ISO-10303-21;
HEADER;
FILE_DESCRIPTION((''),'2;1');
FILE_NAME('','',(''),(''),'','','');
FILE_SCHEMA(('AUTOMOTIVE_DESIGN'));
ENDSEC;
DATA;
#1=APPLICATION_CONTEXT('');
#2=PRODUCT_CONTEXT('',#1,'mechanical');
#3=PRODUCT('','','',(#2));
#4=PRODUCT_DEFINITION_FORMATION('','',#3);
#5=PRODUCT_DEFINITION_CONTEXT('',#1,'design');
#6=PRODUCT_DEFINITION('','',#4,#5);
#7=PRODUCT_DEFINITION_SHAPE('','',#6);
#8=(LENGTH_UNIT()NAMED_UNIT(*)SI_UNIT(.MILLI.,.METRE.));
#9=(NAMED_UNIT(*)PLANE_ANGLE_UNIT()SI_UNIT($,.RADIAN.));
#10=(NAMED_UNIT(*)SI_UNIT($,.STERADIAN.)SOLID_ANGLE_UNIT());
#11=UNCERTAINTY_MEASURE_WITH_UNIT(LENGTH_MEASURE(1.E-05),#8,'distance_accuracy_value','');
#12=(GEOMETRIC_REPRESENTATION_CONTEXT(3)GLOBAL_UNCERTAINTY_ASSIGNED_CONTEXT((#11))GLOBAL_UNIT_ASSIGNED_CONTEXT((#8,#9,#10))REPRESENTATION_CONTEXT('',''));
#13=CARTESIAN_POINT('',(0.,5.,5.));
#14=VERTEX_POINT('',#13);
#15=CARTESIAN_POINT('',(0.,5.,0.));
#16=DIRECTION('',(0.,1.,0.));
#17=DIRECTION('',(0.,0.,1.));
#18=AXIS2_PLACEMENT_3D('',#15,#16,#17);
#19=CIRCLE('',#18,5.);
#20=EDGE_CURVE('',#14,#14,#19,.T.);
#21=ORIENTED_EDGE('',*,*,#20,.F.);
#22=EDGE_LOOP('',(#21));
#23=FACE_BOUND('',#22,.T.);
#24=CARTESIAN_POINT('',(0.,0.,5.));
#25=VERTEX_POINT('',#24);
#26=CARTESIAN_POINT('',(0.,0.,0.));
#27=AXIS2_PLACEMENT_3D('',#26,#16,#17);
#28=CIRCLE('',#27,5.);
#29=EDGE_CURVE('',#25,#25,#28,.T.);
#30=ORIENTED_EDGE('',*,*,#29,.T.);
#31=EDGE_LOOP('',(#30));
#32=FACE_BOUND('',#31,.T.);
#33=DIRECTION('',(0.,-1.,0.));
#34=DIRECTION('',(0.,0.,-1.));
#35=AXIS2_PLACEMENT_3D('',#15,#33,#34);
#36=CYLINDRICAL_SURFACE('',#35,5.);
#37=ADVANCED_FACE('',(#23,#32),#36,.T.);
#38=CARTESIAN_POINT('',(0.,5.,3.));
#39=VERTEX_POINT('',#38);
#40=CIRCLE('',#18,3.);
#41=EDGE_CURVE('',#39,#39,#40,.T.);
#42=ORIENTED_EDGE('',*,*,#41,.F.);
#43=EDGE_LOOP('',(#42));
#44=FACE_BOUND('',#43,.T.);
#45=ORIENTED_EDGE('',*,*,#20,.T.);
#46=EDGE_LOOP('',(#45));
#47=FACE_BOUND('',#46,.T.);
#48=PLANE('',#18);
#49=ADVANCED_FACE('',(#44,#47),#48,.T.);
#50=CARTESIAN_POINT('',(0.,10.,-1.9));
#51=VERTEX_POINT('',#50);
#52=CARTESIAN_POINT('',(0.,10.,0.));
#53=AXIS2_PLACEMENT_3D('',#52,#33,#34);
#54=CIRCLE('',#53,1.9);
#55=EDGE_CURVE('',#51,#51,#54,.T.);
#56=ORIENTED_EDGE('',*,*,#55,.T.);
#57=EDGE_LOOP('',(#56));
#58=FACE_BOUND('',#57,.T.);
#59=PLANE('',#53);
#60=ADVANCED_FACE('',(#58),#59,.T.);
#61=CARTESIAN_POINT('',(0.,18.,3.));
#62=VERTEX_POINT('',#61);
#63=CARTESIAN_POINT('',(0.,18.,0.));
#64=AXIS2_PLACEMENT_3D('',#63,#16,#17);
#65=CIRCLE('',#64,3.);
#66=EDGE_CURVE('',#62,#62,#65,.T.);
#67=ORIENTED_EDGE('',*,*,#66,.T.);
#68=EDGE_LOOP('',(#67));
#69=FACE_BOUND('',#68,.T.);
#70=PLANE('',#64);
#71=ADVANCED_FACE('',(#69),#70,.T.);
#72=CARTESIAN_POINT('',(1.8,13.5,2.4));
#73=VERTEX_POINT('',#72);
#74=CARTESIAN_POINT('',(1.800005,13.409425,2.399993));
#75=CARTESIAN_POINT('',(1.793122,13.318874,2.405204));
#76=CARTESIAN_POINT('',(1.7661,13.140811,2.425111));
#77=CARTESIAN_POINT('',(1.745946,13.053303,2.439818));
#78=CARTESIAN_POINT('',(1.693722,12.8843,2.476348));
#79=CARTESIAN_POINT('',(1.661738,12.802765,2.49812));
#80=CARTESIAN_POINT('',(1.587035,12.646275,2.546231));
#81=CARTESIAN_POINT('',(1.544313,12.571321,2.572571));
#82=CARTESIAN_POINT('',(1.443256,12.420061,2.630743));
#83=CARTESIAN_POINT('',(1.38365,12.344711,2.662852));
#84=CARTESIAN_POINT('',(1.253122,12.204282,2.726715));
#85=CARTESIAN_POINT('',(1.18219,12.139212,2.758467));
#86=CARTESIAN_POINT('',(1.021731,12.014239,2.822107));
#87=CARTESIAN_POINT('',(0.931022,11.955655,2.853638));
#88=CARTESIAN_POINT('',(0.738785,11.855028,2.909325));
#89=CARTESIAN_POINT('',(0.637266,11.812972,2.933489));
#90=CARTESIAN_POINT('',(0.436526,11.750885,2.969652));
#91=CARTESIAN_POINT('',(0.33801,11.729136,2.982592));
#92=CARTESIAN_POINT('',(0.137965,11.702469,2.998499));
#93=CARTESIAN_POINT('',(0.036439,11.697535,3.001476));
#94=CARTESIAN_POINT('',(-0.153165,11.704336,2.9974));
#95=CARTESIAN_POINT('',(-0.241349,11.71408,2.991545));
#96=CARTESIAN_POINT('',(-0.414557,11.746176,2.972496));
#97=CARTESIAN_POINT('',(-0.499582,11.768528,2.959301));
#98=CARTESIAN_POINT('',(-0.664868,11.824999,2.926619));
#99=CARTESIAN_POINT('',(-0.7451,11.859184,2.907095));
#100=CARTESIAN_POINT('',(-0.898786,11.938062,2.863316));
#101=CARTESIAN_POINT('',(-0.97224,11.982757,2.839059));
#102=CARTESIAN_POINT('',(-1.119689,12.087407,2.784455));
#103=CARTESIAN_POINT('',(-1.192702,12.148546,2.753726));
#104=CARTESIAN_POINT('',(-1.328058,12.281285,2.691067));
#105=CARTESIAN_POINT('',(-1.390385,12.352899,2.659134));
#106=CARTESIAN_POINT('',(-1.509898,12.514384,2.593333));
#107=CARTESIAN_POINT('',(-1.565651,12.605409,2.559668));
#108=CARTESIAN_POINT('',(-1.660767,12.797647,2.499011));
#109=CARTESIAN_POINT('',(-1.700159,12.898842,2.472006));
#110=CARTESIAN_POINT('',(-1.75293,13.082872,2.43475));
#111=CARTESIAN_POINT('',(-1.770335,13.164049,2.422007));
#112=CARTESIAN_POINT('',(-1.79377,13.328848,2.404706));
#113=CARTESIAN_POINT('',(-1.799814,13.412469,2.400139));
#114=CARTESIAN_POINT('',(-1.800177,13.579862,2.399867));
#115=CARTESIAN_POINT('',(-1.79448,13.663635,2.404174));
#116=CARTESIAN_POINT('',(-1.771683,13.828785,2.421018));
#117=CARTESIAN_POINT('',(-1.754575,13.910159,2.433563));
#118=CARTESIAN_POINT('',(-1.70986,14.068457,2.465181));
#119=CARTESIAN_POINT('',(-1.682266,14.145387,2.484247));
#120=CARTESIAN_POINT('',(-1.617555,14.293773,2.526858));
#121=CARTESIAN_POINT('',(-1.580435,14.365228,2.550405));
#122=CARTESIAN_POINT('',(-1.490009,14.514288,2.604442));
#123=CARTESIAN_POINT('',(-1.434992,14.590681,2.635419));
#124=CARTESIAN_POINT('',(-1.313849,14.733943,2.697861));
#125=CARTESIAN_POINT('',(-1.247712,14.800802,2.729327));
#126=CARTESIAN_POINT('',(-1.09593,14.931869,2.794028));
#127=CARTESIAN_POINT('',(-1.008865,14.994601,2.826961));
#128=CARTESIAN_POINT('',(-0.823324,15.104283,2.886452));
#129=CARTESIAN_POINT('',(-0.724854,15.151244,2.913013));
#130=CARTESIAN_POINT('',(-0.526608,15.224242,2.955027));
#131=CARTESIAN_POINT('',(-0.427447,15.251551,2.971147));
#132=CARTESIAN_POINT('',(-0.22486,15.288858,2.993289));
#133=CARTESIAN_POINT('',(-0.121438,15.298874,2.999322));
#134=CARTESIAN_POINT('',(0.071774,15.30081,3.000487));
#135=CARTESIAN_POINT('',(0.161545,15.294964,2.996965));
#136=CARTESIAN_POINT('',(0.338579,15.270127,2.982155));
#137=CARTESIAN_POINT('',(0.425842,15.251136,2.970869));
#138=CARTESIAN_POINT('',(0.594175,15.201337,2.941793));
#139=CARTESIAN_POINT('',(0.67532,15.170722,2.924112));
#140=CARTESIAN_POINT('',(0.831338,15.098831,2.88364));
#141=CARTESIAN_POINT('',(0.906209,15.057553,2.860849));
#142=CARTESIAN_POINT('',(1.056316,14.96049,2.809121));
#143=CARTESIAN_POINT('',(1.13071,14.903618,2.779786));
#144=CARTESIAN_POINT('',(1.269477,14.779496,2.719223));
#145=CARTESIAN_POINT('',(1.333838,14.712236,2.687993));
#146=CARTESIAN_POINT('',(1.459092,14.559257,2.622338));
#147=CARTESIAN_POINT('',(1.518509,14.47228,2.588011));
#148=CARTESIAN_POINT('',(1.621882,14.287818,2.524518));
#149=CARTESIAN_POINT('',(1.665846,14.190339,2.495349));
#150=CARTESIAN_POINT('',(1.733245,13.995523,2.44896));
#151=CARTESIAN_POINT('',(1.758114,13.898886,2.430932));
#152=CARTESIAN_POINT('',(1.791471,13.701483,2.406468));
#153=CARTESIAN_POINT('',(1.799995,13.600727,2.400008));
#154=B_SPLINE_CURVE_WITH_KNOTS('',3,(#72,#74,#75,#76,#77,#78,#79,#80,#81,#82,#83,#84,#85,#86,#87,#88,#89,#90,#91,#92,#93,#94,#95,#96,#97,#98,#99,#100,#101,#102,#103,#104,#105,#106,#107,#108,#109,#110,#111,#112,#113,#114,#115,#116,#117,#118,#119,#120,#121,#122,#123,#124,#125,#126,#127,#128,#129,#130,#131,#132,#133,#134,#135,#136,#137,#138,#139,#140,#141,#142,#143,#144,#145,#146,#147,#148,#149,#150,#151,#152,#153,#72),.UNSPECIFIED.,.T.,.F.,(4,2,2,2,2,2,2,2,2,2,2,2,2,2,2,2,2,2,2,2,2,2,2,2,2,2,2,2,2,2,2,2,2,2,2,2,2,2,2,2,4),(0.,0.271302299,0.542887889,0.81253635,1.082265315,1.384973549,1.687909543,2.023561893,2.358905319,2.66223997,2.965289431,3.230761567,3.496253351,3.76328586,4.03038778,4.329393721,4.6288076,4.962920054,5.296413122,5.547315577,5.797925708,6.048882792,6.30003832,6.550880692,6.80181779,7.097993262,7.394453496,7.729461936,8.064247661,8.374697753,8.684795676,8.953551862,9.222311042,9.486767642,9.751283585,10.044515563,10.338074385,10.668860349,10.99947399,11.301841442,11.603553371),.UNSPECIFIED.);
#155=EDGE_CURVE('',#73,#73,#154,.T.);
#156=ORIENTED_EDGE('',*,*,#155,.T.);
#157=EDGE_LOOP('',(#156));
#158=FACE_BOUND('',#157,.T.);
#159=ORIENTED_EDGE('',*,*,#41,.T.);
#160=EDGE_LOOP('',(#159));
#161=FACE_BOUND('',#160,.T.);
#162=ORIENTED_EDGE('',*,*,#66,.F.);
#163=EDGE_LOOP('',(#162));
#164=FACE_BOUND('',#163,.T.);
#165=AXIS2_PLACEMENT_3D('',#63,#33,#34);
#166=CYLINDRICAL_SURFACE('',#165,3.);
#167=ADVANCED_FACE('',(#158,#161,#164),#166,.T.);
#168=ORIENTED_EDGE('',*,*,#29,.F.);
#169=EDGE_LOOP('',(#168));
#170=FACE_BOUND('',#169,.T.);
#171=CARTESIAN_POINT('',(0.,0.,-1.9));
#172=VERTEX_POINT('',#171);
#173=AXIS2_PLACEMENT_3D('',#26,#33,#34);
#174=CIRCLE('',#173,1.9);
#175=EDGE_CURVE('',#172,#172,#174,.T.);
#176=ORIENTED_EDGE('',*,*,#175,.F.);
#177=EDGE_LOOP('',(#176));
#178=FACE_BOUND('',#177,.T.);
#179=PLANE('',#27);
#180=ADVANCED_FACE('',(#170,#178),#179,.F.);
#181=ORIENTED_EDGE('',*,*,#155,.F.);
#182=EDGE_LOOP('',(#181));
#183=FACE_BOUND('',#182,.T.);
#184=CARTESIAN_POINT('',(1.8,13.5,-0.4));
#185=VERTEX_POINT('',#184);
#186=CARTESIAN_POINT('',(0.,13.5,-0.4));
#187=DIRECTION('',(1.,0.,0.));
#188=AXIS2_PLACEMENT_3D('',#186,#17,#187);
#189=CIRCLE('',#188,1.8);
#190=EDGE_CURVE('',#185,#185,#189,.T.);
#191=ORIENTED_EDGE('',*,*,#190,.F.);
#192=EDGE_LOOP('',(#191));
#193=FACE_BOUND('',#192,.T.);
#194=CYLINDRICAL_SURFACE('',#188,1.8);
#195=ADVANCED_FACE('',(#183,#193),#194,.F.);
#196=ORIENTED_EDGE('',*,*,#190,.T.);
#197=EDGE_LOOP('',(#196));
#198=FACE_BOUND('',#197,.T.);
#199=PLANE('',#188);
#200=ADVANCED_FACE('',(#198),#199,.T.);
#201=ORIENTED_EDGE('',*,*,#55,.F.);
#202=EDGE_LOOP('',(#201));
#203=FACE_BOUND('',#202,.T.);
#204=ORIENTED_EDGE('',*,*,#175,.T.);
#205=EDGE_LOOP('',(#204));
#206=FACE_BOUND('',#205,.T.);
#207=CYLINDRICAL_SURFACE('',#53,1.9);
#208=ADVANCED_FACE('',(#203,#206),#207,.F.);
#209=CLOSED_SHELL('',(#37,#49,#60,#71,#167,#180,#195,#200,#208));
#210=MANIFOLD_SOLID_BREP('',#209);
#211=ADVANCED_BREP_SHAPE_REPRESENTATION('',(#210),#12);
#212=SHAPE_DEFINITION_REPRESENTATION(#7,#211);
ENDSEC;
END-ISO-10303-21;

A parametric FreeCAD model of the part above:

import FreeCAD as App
import Part
import Sketcher

doc = App.newDocument("Part")
params = doc.addObject("Spreadsheet::Sheet", "Params")
for row, (alias, value) in enumerate([
    ("sketch1_diameter", "10 mm"),
    ("pad1_length", "5 mm"),
    ("sketch2_diameter", "6 mm"),
    ("pad2_length", "13 mm"),
    ("sketch3_diameter", "3.8 mm"),
    ("pocket1_length", "10 mm"),
    ("sketch4_diameter", "3.6 mm"),
    ("pocket2_length", "20.33908 mm"),
    ("pocket2_length2", "0.4 mm"),
], start=1):
    params.set(f"A{row}", alias)
    params.set(f"B{row}", "=" + value)
    params.setAlias(f"B{row}", alias)

body = doc.addObject("PartDesign::Body", "Body")

# Sketch on XZ plane
sketch1 = body.newObject("Sketcher::SketchObject", "Sketch")
sketch1.AttachmentSupport = (doc.getObject("XZ_Plane"), [""])
sketch1.MapMode = "FlatFace"
sketch1.addGeometry(Part.Circle(App.Vector(0, 0, 0), App.Vector(0, 0, 1), 5), False)
sketch1.addConstraint(Sketcher.Constraint("Coincident", 0, 3, -1, 1))
sketch1.addConstraint(Sketcher.Constraint("Diameter", 0, 10.0))
sketch1.setExpression("Constraints[1]", "Params.sketch1_diameter")
pad1 = body.newObject("PartDesign::Pad", "Pad")
pad1.Profile = sketch1
pad1.setExpression("Length", "Params.pad1_length")
pad1.Reversed = True

# Sketch on XZ plane
sketch2 = body.newObject("Sketcher::SketchObject", "Sketch001")
sketch2.AttachmentSupport = (doc.getObject("XZ_Plane"), [""])
sketch2.MapMode = "FlatFace"
sketch2.AttachmentOffset = App.Placement(App.Vector(0, 0, -5), App.Rotation())
sketch2.addGeometry(Part.Circle(App.Vector(0, 0, 0), App.Vector(0, 0, 1), 3), False)
sketch2.addConstraint(Sketcher.Constraint("Coincident", 0, 3, -1, 1))
sketch2.addConstraint(Sketcher.Constraint("Diameter", 0, 6.0))
sketch2.setExpression("Constraints[1]", "Params.sketch2_diameter")
pad2 = body.newObject("PartDesign::Pad", "Pad001")
pad2.Profile = sketch2
pad2.setExpression("Length", "Params.pad2_length")
pad2.Reversed = True

# Sketch on XZ plane
sketch3 = body.newObject("Sketcher::SketchObject", "Sketch002")
sketch3.AttachmentSupport = (doc.getObject("XZ_Plane"), [""])
sketch3.MapMode = "FlatFace"
sketch3.addGeometry(Part.Circle(App.Vector(0, 0, 0), App.Vector(0, 0, 1), 1.9), False)
sketch3.addConstraint(Sketcher.Constraint("Coincident", 0, 3, -1, 1))
sketch3.addConstraint(Sketcher.Constraint("Diameter", 0, 3.8))
sketch3.setExpression("Constraints[1]", "Params.sketch3_diameter")
pocket1 = body.newObject("PartDesign::Pocket", "Pocket")
pocket1.Profile = sketch3
pocket1.setExpression("Length", "Params.pocket1_length")

# Sketch on XY plane
sketch4 = body.newObject("Sketcher::SketchObject", "Sketch003")
sketch4.AttachmentSupport = (doc.getObject("XY_Plane"), [""])
sketch4.MapMode = "FlatFace"
sketch4.addGeometry(Part.Circle(App.Vector(0, 13.5, 0), App.Vector(0, 0, 1), 1.8), False)
sketch4.addConstraint(Sketcher.Constraint("PointOnObject", 0, 3, -2))
sketch4.addConstraint(Sketcher.Constraint("Diameter", 0, 3.6))
sketch4.addConstraint(Sketcher.Constraint("DistanceY", -1, 1, 0, 3, 13.5))
sketch4.setExpression("Constraints[1]", "Params.sketch4_diameter")
pocket2 = body.newObject("PartDesign::Pocket", "Pocket001")
pocket2.Profile = sketch4
pocket2.Type = "TwoLengths"
pocket2.setExpression("Length", "Params.pocket2_length")
pocket2.setExpression("Length2", "Params.pocket2_length2")
pocket2.Reversed = True

doc.recompute()
